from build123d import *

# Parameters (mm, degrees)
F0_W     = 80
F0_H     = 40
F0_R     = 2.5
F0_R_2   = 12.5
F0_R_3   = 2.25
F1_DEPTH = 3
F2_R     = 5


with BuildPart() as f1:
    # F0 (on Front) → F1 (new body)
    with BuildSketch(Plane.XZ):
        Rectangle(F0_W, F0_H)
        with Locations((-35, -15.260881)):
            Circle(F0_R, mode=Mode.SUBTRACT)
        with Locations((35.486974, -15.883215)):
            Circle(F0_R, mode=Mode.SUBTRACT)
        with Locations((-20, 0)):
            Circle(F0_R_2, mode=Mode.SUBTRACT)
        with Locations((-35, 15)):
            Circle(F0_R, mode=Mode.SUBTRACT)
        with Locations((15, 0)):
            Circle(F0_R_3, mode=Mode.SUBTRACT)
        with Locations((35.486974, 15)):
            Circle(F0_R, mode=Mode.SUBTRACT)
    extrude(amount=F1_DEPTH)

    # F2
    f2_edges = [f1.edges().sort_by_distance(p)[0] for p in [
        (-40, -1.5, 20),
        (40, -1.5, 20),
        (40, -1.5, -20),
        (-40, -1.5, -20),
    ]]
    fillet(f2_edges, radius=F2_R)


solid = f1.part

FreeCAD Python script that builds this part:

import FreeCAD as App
import Part
import Sketcher
from FreeCAD import Vector
Q = App.Units.Quantity


def edges_at(feature, points):
    """Names of the edges that pass closest to the given points."""
    edges = feature.Shape.Edges
    near = lambda p: min(range(len(edges)), key=lambda i: edges[i].distToShape(Part.Vertex(*p))[0])
    return sorted({f"Edge{near(p) + 1}" for p in points})

doc = App.newDocument("Part")
params = doc.addObject("Spreadsheet::Sheet", "Params")
for row, (alias, value) in enumerate([
    ("sketch1_diameter", "5 mm"),
    ("sketch1_diameter2", "25 mm"),
    ("sketch1_diameter3", "4.5 mm"),
    ("sketch1_width", "80 mm"),
    ("sketch1_height", "40 mm"),
    ("pad1_length", "3 mm"),
    ("fillet_radius", "5 mm"),
], start=1):
    params.set(f"A{row}", alias)
    params.set(f"B{row}", "=" + value)
    params.setAlias(f"B{row}", alias)

body = doc.addObject("PartDesign::Body", "Body")

sketch1 = body.newObject("Sketcher::SketchObject", "Sketch")
sketch1.AttachmentSupport = (doc.getObject("XZ_Plane"), [""])
sketch1.MapMode = "FlatFace"
sketch1.addGeometry(Part.LineSegment(Vector(-40, 20, 0), Vector(-40, -20, 0)), False)
sketch1.addGeometry(Part.LineSegment(Vector(-40, -20, 0), Vector(40, -20, 0)), False)
sketch1.addGeometry(Part.LineSegment(Vector(40, -20, 0), Vector(40, 20, 0)), False)
sketch1.addGeometry(Part.LineSegment(Vector(40, 20, 0), Vector(-40, 20, 0)), False)
sketch1.addGeometry(Part.Circle(Vector(-35, -15.3, 0), Vector(0, 0, 1), 2.5), False)
sketch1.addGeometry(Part.Circle(Vector(35.5, -15.9, 0), Vector(0, 0, 1), 2.5), False)
sketch1.addGeometry(Part.Circle(Vector(-20, 0, 0), Vector(0, 0, 1), 12.5), False)
sketch1.addGeometry(Part.Circle(Vector(-35, 15, 0), Vector(0, 0, 1), 2.5), False)
sketch1.addGeometry(Part.Circle(Vector(15, 0, 0), Vector(0, 0, 1), 2.2), False)
sketch1.addGeometry(Part.Circle(Vector(35.5, 15, 0), Vector(0, 0, 1), 2.5), False)
sketch1.addConstraint(Sketcher.Constraint("Coincident", 0, 2, 1, 1))
sketch1.addConstraint(Sketcher.Constraint("Coincident", 1, 2, 2, 1))
sketch1.addConstraint(Sketcher.Constraint("Coincident", 2, 2, 3, 1))
sketch1.addConstraint(Sketcher.Constraint("Coincident", 3, 2, 0, 1))
sketch1.addConstraint(Sketcher.Constraint("Vertical", 0))
sketch1.addConstraint(Sketcher.Constraint("Horizontal", 1))
sketch1.addConstraint(Sketcher.Constraint("Vertical", 2))
sketch1.addConstraint(Sketcher.Constraint("Horizontal", 3))
sketch1.addConstraint(Sketcher.Constraint("Equal", 4, 5))
sketch1.addConstraint(Sketcher.Constraint("Equal", 5, 7))
sketch1.addConstraint(Sketcher.Constraint("Equal", 7, 9))
sketch1.addConstraint(Sketcher.Constraint("Symmetric", 0, 2, 2, 2, -1, 1))
sketch1.addConstraint(Sketcher.Constraint("PointOnObject", 6, 3, -1))
sketch1.addConstraint(Sketcher.Constraint("PointOnObject", 8, 3, -1))
sketch1.addConstraint(Sketcher.Constraint("Horizontal", 7, 3, 9, 3))
sketch1.addConstraint(Sketcher.Constraint("Vertical", 4, 3, 7, 3))
sketch1.addConstraint(Sketcher.Constraint("Vertical", 5, 3, 9, 3))
sketch1.addConstraint(Sketcher.Constraint("Diameter", 4, Q("5 mm")))
sketch1.addConstraint(Sketcher.Constraint("Diameter", 6, Q("25 mm")))
sketch1.addConstraint(Sketcher.Constraint("Diameter", 8, Q("4.5 mm")))
sketch1.addConstraint(Sketcher.Constraint("DistanceX", 1, 1, 1, 2, Q("80 mm")))
sketch1.addConstraint(Sketcher.Constraint("DistanceY", 0, 2, 0, 1, Q("40 mm")))
sketch1.addConstraint(Sketcher.Constraint("DistanceX", 4, 3, -1, 1, Q("35 mm")))
sketch1.addConstraint(Sketcher.Constraint("DistanceX", 6, 3, -1, 1, Q("20 mm")))
sketch1.addConstraint(Sketcher.Constraint("DistanceY", -1, 1, 7, 3, Q("15 mm")))
sketch1.addConstraint(Sketcher.Constraint("DistanceX", -1, 1, 8, 3, Q("15 mm")))
sketch1.addConstraint(Sketcher.Constraint("DistanceY", 4, 3, -1, 1, Q("15.260881 mm")))
sketch1.addConstraint(Sketcher.Constraint("DistanceX", -1, 1, 5, 3, Q("35.486974 mm")))
sketch1.addConstraint(Sketcher.Constraint("DistanceY", 5, 3, -1, 1, Q("15.883215 mm")))
sketch1.setExpression("Constraints[17]", "Params.sketch1_diameter")
sketch1.setExpression("Constraints[18]", "Params.sketch1_diameter2")
sketch1.setExpression("Constraints[19]", "Params.sketch1_diameter3")
sketch1.setExpression("Constraints[20]", "Params.sketch1_width")
sketch1.setExpression("Constraints[21]", "Params.sketch1_height")
pad1 = body.newObject("PartDesign::Pad", "Pad")
pad1.Profile = sketch1
pad1.setExpression("Length", "Params.pad1_length")
doc.recompute()

fillet = body.newObject("PartDesign::Fillet", "Fillet")
fillet.Base = (pad1, edges_at(pad1, [
    (-40, -1.5, 20),
    (40, -1.5, 20),
    (40, -1.5, -20),
    (-40, -1.5, -20),
]))
fillet.setExpression("Radius", "Params.fillet_radius")

doc.recompute()
